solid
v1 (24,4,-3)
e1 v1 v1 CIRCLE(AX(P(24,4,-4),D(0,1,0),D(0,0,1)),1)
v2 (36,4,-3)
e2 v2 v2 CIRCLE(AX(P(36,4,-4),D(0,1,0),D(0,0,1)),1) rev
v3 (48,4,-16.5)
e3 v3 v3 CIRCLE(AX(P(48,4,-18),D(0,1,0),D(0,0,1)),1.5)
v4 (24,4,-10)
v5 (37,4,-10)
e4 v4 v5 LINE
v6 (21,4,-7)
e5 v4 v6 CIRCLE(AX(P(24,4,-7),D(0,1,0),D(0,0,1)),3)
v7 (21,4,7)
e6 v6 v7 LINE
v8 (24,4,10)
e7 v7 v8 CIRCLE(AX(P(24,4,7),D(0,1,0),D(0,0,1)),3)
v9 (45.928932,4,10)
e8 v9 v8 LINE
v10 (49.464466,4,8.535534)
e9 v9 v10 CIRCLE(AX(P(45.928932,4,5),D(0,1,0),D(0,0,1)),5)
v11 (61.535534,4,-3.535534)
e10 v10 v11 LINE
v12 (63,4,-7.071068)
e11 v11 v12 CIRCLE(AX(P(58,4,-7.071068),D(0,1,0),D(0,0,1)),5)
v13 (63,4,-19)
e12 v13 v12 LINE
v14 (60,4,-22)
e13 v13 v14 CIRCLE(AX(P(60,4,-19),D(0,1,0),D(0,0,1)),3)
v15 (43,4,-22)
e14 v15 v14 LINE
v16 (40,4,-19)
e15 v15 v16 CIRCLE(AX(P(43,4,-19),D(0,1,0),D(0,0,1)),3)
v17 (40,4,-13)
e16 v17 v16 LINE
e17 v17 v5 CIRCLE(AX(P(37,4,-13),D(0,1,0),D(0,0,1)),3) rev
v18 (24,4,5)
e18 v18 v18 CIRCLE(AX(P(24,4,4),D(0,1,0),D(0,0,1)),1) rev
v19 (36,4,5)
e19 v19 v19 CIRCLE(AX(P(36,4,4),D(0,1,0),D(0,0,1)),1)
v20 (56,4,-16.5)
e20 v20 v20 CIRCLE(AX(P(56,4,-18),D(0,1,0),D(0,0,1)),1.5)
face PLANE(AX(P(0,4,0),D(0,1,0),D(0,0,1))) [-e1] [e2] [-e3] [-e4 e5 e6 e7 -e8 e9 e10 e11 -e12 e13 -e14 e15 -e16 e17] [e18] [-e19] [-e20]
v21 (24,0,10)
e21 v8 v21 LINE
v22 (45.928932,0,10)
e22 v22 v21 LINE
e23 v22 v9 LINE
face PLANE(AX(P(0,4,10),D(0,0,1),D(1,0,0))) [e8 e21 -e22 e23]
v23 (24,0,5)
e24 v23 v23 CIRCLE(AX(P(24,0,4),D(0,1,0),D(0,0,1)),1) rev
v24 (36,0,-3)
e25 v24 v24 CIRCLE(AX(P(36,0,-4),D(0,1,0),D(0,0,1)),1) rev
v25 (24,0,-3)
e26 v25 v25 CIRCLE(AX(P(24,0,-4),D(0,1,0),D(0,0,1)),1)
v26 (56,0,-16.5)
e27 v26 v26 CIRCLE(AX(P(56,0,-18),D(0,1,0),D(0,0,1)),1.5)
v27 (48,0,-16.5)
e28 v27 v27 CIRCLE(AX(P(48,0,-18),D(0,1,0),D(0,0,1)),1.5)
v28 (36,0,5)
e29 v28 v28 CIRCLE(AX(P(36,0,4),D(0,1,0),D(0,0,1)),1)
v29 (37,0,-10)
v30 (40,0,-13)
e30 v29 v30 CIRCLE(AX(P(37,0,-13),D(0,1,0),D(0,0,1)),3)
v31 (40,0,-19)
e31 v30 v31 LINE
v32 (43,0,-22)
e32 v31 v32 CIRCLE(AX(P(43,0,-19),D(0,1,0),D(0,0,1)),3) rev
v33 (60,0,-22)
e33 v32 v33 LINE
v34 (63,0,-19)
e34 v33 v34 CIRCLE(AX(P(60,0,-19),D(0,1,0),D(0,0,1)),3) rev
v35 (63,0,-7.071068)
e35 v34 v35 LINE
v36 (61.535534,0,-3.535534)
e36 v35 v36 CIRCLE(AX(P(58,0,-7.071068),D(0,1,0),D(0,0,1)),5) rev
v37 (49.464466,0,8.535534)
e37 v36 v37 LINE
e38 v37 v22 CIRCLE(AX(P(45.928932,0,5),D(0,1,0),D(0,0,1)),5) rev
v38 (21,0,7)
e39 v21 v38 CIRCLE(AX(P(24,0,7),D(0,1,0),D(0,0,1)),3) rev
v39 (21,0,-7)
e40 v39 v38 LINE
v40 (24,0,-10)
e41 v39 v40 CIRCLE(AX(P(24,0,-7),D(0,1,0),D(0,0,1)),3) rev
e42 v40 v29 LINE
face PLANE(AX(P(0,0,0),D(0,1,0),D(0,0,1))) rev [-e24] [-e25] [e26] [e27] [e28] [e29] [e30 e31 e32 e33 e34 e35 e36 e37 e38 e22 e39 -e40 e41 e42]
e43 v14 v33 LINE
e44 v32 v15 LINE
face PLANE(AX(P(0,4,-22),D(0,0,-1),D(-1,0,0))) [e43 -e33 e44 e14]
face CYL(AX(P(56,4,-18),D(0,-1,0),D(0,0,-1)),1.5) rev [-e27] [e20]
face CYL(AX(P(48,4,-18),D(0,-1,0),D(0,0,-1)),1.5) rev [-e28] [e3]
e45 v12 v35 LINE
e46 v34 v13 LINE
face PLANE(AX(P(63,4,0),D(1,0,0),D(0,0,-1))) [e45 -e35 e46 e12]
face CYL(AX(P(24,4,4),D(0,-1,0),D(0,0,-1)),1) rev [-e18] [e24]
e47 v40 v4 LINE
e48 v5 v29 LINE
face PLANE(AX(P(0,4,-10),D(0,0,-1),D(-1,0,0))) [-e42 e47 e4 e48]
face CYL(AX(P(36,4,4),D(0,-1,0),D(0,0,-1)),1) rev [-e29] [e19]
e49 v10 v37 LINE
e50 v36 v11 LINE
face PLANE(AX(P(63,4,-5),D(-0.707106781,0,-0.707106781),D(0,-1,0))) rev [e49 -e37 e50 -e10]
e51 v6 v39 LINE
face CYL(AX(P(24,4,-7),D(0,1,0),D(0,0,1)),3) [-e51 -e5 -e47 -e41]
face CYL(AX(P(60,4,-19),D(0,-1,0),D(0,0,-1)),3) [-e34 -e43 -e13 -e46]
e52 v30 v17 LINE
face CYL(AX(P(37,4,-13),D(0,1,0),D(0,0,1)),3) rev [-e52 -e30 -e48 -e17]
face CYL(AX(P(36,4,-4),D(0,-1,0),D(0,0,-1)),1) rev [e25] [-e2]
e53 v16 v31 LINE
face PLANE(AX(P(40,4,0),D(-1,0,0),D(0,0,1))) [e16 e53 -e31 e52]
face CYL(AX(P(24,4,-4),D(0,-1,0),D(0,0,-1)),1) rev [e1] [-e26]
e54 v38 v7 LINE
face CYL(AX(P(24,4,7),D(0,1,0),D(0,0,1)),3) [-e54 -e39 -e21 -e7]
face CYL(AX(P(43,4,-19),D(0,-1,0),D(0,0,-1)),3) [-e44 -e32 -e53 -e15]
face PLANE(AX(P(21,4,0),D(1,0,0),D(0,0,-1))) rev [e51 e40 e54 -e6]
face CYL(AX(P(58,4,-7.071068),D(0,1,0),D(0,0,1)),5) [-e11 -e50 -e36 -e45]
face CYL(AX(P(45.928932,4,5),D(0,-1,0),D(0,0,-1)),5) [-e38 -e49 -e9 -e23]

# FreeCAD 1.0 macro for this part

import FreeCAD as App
import Part
import Sketcher
Q = App.Units.Quantity


def edges_at(feature, points):
    """Names of the edges that pass closest to the given points."""
    edges = feature.Shape.Edges
    near = lambda p: min(range(len(edges)), key=lambda i: edges[i].distToShape(Part.Vertex(*p))[0])
    return sorted({f"Edge{near(p) + 1}" for p in points})

doc = App.newDocument("Part")
body = doc.addObject("PartDesign::Body", "Body")

# Sketch on XZ plane
sketch1 = body.newObject("Sketcher::SketchObject", "Sketch")
sketch1.AttachmentSupport = (doc.getObject("XZ_Plane"), [""])
sketch1.MapMode = "FlatFace"
sketch1.addGeometry(Part.LineSegment(App.Vector(63, 10, 0), App.Vector(63, -22, 0)), False)
sketch1.addGeometry(Part.LineSegment(App.Vector(63, -22, 0), App.Vector(40, -22, 0)), False)
sketch1.addGeometry(Part.LineSegment(App.Vector(40, -22, 0), App.Vector(40, -10, 0)), False)
sketch1.addGeometry(Part.LineSegment(App.Vector(40, -10, 0), App.Vector(21, -10, 0)), False)
sketch1.addGeometry(Part.LineSegment(App.Vector(21, -10, 0), App.Vector(21, 10, 0)), False)
sketch1.addGeometry(Part.LineSegment(App.Vector(21, 10, 0), App.Vector(63, 10, 0)), False)
sketch1.addGeometry(Part.Circle(App.Vector(36, -4, 0), App.Vector(0, 0, 1), 1), False)
sketch1.addGeometry(Part.Circle(App.Vector(24, 4, 0), App.Vector(0, 0, 1), 1), False)
sketch1.addGeometry(Part.Circle(App.Vector(36, 4, 0), App.Vector(0, 0, 1), 1), False)
sketch1.addGeometry(Part.Circle(App.Vector(24, -4, 0), App.Vector(0, 0, 1), 1), False)
sketch1.addGeometry(Part.Circle(App.Vector(56, -18, 0), App.Vector(0, 0, 1), 1.5), False)
sketch1.addGeometry(Part.Circle(App.Vector(48, -18, 0), App.Vector(0, 0, 1), 1.5), False)
sketch1.addConstraint(Sketcher.Constraint("Coincident", 0, 2, 1, 1))
sketch1.addConstraint(Sketcher.Constraint("Coincident", 1, 2, 2, 1))
sketch1.addConstraint(Sketcher.Constraint("Coincident", 2, 2, 3, 1))
sketch1.addConstraint(Sketcher.Constraint("Coincident", 3, 2, 4, 1))
sketch1.addConstraint(Sketcher.Constraint("Coincident", 4, 2, 5, 1))
sketch1.addConstraint(Sketcher.Constraint("Coincident", 5, 2, 0, 1))
sketch1.addConstraint(Sketcher.Constraint("Vertical", 0))
sketch1.addConstraint(Sketcher.Constraint("Horizontal", 1))
sketch1.addConstraint(Sketcher.Constraint("Vertical", 2))
sketch1.addConstraint(Sketcher.Constraint("Horizontal", 3))
sketch1.addConstraint(Sketcher.Constraint("Vertical", 4))
sketch1.addConstraint(Sketcher.Constraint("Horizontal", 5))
sketch1.addConstraint(Sketcher.Constraint("Equal", 6, 7))
sketch1.addConstraint(Sketcher.Constraint("Equal", 7, 8))
sketch1.addConstraint(Sketcher.Constraint("Equal", 8, 9))
sketch1.addConstraint(Sketcher.Constraint("Equal", 10, 11))
sketch1.addConstraint(Sketcher.Constraint("Symmetric", 6, 3, 8, 3, -1))
sketch1.addConstraint(Sketcher.Constraint("Symmetric", 7, 3, 9, 3, -1))
sketch1.addConstraint(Sketcher.Constraint("Horizontal", 7, 3, 8, 3))
sketch1.addConstraint(Sketcher.Constraint("Horizontal", 10, 3, 11, 3))
sketch1.addConstraint(Sketcher.Constraint("Diameter", 6, Q("2 mm")))
sketch1.addConstraint(Sketcher.Constraint("Diameter", 10, Q("3 mm")))
sketch1.addConstraint(Sketcher.Constraint("DistanceX", 1, 2, 1, 1, Q("23 mm")))
sketch1.addConstraint(Sketcher.Constraint("DistanceX", 3, 2, 3, 1, Q("19 mm")))
sketch1.addConstraint(Sketcher.Constraint("DistanceY", 0, 2, 0, 1, Q("32 mm")))
sketch1.addConstraint(Sketcher.Constraint("DistanceY", 2, 1, 2, 2, Q("12 mm")))
sketch1.addConstraint(Sketcher.Constraint("DistanceX", -1, 1, 6, 3, Q("36 mm")))
sketch1.addConstraint(Sketcher.Constraint("DistanceY", 6, 3, -1, 1, Q("4 mm")))
sketch1.addConstraint(Sketcher.Constraint("DistanceX", -1, 1, 7, 3, Q("24 mm")))
sketch1.addConstraint(Sketcher.Constraint("DistanceX", -1, 1, 10, 3, Q("56 mm")))
sketch1.addConstraint(Sketcher.Constraint("DistanceY", 10, 3, -1, 1, Q("18 mm")))
sketch1.addConstraint(Sketcher.Constraint("DistanceX", -1, 1, 11, 3, Q("48 mm")))
sketch1.addConstraint(Sketcher.Constraint("DistanceX", -1, 1, 0, 2, Q("63 mm")))
sketch1.addConstraint(Sketcher.Constraint("DistanceY", 0, 2, -1, 1, Q("22 mm")))
pad1 = body.newObject("PartDesign::Pad", "Pad")
pad1.Profile = sketch1
pad1.Length = 4
pad1.Reversed = True
doc.recompute()

fillet = body.newObject("PartDesign::Fillet", "Fillet")
fillet.Base = (pad1, edges_at(pad1, [
    (21, 2, 10),
    (21, 2, -10),
    (40, 2, -10),
    (40, 2, -22),
    (63, 2, -22),
]))
fillet.Radius = 3
doc.recompute()

chamfer = body.newObject("PartDesign::Chamfer", "Chamfer")
chamfer.Base = (fillet, edges_at(fillet, [(63, 2, 10)]))
chamfer.Size = 15
doc.recompute()

fillet2 = body.newObject("PartDesign::Fillet", "Fillet001")
fillet2.Base = (chamfer, edges_at(chamfer, [(63, 2, -5), (48, 2, 10)]))
fillet2.Radius = 5

doc.recompute()
